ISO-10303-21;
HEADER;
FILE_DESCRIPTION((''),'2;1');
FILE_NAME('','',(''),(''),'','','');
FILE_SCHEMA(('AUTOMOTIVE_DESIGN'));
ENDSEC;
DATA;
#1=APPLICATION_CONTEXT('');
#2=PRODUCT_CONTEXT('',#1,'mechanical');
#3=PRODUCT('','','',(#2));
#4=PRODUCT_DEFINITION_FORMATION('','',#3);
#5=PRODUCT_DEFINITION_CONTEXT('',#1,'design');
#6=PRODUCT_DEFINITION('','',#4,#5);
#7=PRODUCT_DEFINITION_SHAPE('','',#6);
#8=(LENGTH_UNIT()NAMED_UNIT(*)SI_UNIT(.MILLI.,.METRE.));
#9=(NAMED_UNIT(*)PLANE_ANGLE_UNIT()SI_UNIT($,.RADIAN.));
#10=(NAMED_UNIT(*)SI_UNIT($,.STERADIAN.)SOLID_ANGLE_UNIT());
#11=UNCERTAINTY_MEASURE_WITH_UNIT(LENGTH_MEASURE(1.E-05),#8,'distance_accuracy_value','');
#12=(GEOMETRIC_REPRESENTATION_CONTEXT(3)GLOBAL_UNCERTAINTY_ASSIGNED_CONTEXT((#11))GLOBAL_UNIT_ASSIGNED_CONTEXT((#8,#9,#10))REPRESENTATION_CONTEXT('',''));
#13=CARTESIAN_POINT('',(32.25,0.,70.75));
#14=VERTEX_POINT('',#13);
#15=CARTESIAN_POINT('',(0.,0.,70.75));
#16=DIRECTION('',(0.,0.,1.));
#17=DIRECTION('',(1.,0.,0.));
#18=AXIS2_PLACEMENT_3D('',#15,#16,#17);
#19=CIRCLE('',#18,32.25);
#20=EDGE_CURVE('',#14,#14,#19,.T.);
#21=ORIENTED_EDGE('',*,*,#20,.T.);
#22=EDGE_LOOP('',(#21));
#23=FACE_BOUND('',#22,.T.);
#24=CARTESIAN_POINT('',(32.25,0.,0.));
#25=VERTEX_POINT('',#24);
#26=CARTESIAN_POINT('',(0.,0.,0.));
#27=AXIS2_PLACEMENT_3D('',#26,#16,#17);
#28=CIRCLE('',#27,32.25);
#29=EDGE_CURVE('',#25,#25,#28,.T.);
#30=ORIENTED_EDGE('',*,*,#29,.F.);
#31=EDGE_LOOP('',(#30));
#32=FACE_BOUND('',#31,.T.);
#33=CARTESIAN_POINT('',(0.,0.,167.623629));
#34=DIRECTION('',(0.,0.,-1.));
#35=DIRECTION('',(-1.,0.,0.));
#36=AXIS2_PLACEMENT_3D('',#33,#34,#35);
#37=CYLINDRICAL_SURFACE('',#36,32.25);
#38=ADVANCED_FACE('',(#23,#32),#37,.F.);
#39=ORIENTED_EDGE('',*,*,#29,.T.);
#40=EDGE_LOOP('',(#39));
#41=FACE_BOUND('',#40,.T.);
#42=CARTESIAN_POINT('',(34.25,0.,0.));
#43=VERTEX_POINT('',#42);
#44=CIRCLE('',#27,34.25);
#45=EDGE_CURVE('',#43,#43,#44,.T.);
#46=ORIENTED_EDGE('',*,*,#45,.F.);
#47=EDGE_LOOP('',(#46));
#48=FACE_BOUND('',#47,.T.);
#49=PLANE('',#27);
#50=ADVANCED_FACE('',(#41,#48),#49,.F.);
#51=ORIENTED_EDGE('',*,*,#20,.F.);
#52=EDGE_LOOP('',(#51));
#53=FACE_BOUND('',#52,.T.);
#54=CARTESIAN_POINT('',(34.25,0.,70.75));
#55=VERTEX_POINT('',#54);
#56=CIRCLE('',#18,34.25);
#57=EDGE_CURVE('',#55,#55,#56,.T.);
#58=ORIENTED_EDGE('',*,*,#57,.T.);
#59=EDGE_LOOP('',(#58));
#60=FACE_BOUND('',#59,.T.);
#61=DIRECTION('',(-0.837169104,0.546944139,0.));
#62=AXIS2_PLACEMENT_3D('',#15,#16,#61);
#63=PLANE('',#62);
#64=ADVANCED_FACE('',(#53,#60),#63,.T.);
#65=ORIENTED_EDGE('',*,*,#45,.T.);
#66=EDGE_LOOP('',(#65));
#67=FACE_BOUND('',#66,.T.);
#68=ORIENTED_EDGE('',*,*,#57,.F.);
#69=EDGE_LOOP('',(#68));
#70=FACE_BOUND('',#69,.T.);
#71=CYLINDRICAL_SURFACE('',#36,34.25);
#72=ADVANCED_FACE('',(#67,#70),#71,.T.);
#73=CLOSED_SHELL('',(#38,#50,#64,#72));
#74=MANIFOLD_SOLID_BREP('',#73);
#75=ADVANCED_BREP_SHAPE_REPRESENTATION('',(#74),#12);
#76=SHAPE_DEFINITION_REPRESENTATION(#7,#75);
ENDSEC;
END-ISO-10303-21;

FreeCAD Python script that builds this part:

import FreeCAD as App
import Part
import Sketcher

V = App.Vector
Q = App.Units.Quantity

doc = App.newDocument("Part")
body = doc.addObject("PartDesign::Body", "Body")

# Sketch on XY plane
sketch1 = body.newObject("Sketcher::SketchObject", "Sketch")
sketch1.AttachmentSupport = (doc.getObject("XY_Plane"), [""])
sketch1.MapMode = "FlatFace"
sketch1.addGeometry([
    Part.Circle(V(0, 0, 0), V(0, 0, 1), 34.25),
    Part.Circle(V(0, 0, 0), V(0, 0, 1), 32.25),
], False)
sketch1.addConstraint([
    Sketcher.Constraint("Coincident", 0, 3, -1, 1),
    Sketcher.Constraint("Coincident", 1, 3, -1, 1),
    Sketcher.Constraint("Diameter", 0, Q("68.5 mm")),
    Sketcher.Constraint("Diameter", 1, Q("64.5 mm")),
])
pad1 = body.newObject("PartDesign::Pad", "Pad")
pad1.Profile = sketch1
pad1.Length = 70.75

doc.recompute()
